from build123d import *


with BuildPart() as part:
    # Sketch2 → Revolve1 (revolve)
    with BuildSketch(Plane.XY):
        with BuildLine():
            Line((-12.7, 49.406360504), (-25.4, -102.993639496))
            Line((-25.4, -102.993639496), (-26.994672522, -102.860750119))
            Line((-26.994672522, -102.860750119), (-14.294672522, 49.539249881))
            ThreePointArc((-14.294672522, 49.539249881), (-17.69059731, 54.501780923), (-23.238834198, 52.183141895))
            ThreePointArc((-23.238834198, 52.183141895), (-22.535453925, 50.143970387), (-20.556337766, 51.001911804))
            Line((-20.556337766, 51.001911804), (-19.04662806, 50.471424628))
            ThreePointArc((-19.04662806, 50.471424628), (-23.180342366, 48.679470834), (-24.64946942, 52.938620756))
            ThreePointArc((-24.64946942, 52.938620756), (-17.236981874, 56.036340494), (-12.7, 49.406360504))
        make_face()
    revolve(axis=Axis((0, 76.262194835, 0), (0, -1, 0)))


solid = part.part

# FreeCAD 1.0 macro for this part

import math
import FreeCAD as App
import Part
import Sketcher

V = App.Vector
Q = App.Units.Quantity

doc = App.newDocument("Part")
body = doc.addObject("PartDesign::Body", "Body")

# Sketch on XY plane
sketch1 = doc.addObject("Sketcher::SketchObject", "Sketch")
body.addObject(sketch1)
sketch1.AttachmentSupport = (doc.XY_Plane, [""])
sketch1.MapMode = "FlatFace"
sketch1.addGeometry(Part.LineSegment(V(-25.4, -102.993639, 0), V(-12.7, 49.406361, 0)), False)
sketch1.addGeometry(Part.ArcOfCircle(Part.Circle(V(-19.040612, 49.934745, 0), V(0, 0, 1), 6.36259), math.radians(-4.763642), math.radians(151.828309)), False)
sketch1.addGeometry(Part.ArcOfCircle(Part.Circle(V(-21.943089, 51.489193, 0), V(0, 0, 1), 3.070071), math.radians(151.828309), math.radians(340.639363)), False)
sketch1.addGeometry(Part.LineSegment(V(-19.046628, 50.471425, 0), V(-20.556338, 51.001912, 0)), False)
sketch1.addGeometry(Part.ArcOfCircle(Part.Circle(V(-21.943089, 51.489193, 0), V(0, 0, 1), 1.469871), math.radians(151.828309), math.radians(340.639363)), False)
sketch1.addGeometry(Part.ArcOfCircle(Part.Circle(V(-19.040612, 49.934745, 0), V(0, 0, 1), 4.76239), math.radians(-4.763642), math.radians(151.828309)), False)
sketch1.addGeometry(Part.LineSegment(V(-14.294673, 49.53925, 0), V(-26.994673, -102.86075, 0)), False)
sketch1.addGeometry(Part.LineSegment(V(-26.994673, -102.86075, 0), V(-25.4, -102.993639, 0)), False)
sketch1.addConstraint(Sketcher.Constraint("Tangent", 0, 2, 1, 1))
sketch1.addConstraint(Sketcher.Constraint("Tangent", 1, 2, 2, 1))
sketch1.addConstraint(Sketcher.Constraint("Coincident", 2, 2, 3, 1))
sketch1.addConstraint(Sketcher.Constraint("Coincident", 3, 2, 4, 2))
sketch1.addConstraint(Sketcher.Constraint("Tangent", 4, 1, 5, 2))
sketch1.addConstraint(Sketcher.Constraint("Tangent", 5, 1, 6, 1))
sketch1.addConstraint(Sketcher.Constraint("Coincident", 6, 2, 7, 1))
sketch1.addConstraint(Sketcher.Constraint("Coincident", 7, 2, 0, 1))
sketch1.addConstraint(Sketcher.Constraint("Coincident", 4, 3, 2, 3))
sketch1.addConstraint(Sketcher.Constraint("Coincident", 5, 3, 1, 3))
sketch1.addConstraint(Sketcher.Constraint("Parallel", 0, 6))
sketch1.addConstraint(Sketcher.Constraint("Perpendicular", 6, 7))
sketch1.addConstraint(Sketcher.Constraint("DistanceX", 7, 2, -1, 1, Q("1 in")))
sketch1.addConstraint(Sketcher.Constraint("DistanceY", 6, 2, 5, 1, Q("6 in")))
sketch1.addConstraint(Sketcher.Constraint("DistanceX", 0, 2, -1, 1, Q("0.5 in")))
sketch1.addConstraint(Sketcher.Constraint("Distance", 3, Q("0.063 in")))
sketch1.addConstraint(Sketcher.Constraint("Radius", 1, 6.36259))
sketch1.addConstraint(Sketcher.Constraint("Radius", 2, 3.070071))
sketch1.addConstraint(Sketcher.Constraint("DistanceX", 2, 3, -1, 1, 21.943089))
sketch1.addConstraint(Sketcher.Constraint("DistanceY", -1, 1, 0, 2, 49.406361))
sketch1.addConstraint(Sketcher.Constraint("DistanceX", 2, 2, -1, 1, 19.046628))
sketch1.addConstraint(Sketcher.Constraint("DistanceY", -1, 1, 3, 2, 51.001912))
revolution = doc.addObject("PartDesign::Revolution", "Revolution")
body.addObject(revolution)
revolution.Profile = sketch1
revolution.ReferenceAxis = (sketch1, ["V_Axis"])
revolution.Angle = 360

doc.recompute()
